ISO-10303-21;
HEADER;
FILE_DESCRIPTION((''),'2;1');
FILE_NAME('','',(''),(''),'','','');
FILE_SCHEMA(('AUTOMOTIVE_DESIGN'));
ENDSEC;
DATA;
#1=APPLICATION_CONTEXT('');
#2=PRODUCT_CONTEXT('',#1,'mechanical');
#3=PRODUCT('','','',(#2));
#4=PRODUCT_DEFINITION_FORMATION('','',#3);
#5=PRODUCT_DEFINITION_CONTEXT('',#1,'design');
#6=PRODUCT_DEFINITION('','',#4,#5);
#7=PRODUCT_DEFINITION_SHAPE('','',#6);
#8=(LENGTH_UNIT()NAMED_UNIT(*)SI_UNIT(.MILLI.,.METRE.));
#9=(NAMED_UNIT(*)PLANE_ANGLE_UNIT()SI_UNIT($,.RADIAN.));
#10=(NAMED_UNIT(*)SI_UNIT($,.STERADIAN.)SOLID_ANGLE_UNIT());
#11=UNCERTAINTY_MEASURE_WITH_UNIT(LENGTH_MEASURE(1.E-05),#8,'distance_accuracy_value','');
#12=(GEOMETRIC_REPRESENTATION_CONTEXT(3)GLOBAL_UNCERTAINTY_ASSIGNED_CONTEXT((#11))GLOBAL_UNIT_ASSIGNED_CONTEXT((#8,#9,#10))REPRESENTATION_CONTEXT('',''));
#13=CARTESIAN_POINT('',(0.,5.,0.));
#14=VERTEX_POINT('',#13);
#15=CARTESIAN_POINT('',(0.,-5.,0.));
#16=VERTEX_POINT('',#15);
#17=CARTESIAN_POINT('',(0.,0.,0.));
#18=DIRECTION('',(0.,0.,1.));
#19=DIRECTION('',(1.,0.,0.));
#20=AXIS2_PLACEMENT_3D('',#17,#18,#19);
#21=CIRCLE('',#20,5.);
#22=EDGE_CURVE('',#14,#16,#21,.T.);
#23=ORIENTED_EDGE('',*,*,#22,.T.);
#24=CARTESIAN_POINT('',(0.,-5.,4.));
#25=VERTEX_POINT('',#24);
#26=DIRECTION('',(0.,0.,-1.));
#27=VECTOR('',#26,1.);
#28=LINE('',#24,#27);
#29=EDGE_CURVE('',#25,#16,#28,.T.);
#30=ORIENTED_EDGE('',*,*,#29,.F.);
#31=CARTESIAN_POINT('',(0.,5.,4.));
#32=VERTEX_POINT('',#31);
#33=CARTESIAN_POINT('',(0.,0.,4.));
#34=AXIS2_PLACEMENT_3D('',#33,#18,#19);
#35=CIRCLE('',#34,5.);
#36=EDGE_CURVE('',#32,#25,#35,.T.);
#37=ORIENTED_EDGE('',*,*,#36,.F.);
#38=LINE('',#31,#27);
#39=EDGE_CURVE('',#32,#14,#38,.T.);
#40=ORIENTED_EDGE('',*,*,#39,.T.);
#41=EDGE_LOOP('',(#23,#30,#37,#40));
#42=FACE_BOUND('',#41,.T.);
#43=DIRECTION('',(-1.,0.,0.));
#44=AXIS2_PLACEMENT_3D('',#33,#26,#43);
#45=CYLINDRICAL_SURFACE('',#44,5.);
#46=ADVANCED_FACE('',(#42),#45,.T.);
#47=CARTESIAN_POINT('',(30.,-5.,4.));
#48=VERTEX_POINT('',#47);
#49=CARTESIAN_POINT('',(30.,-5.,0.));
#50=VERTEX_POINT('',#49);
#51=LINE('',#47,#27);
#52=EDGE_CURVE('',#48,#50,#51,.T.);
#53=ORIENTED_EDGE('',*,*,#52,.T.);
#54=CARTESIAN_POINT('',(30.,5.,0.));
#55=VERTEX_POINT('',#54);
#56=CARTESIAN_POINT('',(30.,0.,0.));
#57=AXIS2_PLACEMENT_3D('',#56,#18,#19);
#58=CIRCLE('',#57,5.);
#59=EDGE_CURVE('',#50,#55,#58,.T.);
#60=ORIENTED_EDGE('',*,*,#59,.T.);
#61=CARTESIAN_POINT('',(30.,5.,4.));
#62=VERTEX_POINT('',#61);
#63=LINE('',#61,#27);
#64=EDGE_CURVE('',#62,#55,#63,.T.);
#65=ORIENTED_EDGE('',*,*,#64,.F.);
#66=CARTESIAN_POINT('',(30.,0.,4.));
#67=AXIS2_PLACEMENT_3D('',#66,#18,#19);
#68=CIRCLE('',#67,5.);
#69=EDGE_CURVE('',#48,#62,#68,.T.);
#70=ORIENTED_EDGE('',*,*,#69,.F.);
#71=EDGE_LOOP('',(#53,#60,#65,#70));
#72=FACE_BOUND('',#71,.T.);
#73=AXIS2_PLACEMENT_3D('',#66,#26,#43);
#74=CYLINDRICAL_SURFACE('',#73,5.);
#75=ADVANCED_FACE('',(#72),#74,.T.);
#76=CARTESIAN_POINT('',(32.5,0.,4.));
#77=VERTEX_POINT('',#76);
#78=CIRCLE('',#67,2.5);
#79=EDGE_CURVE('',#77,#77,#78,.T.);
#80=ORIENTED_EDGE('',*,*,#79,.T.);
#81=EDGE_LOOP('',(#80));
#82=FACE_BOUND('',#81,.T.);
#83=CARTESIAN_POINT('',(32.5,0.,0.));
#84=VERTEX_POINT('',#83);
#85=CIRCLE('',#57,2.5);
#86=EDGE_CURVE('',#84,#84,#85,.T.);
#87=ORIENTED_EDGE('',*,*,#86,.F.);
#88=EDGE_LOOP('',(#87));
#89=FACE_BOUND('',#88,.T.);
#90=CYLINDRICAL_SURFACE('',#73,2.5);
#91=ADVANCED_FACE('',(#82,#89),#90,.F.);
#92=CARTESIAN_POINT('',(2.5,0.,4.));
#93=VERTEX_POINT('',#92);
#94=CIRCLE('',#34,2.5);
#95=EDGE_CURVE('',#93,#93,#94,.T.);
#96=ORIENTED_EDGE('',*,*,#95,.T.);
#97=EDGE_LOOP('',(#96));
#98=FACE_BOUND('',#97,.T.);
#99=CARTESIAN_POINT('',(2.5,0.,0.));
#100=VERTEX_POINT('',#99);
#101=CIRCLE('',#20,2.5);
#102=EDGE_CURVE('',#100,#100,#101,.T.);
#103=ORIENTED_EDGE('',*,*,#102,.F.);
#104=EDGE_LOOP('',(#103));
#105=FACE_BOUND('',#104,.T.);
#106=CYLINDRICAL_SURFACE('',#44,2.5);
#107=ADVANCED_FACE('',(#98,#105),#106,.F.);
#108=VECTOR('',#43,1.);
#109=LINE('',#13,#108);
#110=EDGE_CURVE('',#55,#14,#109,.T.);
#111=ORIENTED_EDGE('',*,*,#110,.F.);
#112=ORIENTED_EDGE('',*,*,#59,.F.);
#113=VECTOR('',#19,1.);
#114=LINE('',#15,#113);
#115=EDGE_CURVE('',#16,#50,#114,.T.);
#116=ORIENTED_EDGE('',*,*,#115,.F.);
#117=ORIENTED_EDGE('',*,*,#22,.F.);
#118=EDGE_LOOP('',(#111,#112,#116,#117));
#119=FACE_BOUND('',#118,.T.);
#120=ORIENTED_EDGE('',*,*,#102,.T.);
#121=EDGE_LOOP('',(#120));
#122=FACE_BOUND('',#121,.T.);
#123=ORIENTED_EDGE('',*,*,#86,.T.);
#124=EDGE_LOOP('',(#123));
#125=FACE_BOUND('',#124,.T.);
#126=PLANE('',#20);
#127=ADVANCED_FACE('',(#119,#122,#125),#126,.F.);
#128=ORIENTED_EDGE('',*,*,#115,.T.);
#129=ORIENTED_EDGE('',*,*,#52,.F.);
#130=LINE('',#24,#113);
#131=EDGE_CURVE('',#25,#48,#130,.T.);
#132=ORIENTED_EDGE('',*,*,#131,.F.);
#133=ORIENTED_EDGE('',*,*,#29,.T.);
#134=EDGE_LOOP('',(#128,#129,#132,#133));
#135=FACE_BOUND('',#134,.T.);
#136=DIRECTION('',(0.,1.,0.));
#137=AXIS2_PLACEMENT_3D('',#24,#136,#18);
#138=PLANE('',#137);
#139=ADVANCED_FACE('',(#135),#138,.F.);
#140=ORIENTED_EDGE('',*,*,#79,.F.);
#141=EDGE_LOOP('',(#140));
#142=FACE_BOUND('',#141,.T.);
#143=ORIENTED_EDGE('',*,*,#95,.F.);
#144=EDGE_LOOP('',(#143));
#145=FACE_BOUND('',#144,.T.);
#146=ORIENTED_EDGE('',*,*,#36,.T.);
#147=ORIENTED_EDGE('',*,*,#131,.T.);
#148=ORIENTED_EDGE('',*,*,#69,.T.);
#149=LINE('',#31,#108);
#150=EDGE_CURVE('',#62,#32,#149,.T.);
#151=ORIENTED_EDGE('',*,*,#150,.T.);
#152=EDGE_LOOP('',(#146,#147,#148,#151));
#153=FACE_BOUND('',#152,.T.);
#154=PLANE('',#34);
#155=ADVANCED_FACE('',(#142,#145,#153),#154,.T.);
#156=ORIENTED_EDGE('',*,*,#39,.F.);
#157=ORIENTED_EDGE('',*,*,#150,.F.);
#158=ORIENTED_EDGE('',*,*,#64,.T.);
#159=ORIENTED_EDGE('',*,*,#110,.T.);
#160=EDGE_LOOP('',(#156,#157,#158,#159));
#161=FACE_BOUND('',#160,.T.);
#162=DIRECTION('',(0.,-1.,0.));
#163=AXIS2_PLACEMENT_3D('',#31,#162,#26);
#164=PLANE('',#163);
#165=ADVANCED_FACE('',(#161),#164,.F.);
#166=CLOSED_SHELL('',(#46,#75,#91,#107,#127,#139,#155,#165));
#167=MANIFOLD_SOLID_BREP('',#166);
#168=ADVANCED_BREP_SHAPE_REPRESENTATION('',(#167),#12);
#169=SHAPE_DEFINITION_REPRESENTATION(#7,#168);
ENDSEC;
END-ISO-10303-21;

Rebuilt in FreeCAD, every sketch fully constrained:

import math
import FreeCAD as App
import Part
import Sketcher
from FreeCAD import Vector

doc = App.newDocument("Part")
body = doc.addObject("PartDesign::Body", "Body")

# Sketch on XY plane
sketch1 = doc.addObject("Sketcher::SketchObject", "Sketch")
body.addObject(sketch1)
sketch1.AttachmentSupport = (doc.XY_Plane, [""])
sketch1.MapMode = "FlatFace"
sketch1.addGeometry(Part.LineSegment(Vector(30, 5, 0), Vector(0, 5, 0)), False)
sketch1.addGeometry(Part.ArcOfCircle(Part.Circle(Vector(0, 0, 0), Vector(0, 0, 1), 5), math.radians(90), math.radians(270)), False)
sketch1.addGeometry(Part.LineSegment(Vector(0, -5, 0), Vector(30, -5, 0)), False)
sketch1.addGeometry(Part.ArcOfCircle(Part.Circle(Vector(30, 0, 0), Vector(0, 0, 1), 5), math.radians(-90), math.radians(90)), False)
sketch1.addGeometry(Part.Circle(Vector(30, 0, 0), Vector(0, 0, 1), 2.5), False)
sketch1.addGeometry(Part.Circle(Vector(0, 0, 0), Vector(0, 0, 1), 2.5), False)
sketch1.addConstraint(Sketcher.Constraint("Tangent", 0, 2, 1, 1))
sketch1.addConstraint(Sketcher.Constraint("Tangent", 1, 2, 2, 1))
sketch1.addConstraint(Sketcher.Constraint("Tangent", 2, 2, 3, 1))
sketch1.addConstraint(Sketcher.Constraint("Tangent", 3, 2, 0, 1))
sketch1.addConstraint(Sketcher.Constraint("Horizontal", 0))
sketch1.addConstraint(Sketcher.Constraint("Horizontal", 2))
sketch1.addConstraint(Sketcher.Constraint("Coincident", 1, 3, -1, 1))
sketch1.addConstraint(Sketcher.Constraint("Coincident", 5, 3, -1, 1))
sketch1.addConstraint(Sketcher.Constraint("Coincident", 4, 3, 3, 3))
sketch1.addConstraint(Sketcher.Constraint("Equal", 4, 5))
sketch1.addConstraint(Sketcher.Constraint("Diameter", 4, 5.0))
sketch1.addConstraint(Sketcher.Constraint("Radius", 1, 5.0))
sketch1.addConstraint(Sketcher.Constraint("DistanceX", 0, 2, 0, 1, 30.0))
pad1 = doc.addObject("PartDesign::Pad", "Pad")
body.addObject(pad1)
pad1.Profile = sketch1
pad1.Length = 4

doc.recompute()
